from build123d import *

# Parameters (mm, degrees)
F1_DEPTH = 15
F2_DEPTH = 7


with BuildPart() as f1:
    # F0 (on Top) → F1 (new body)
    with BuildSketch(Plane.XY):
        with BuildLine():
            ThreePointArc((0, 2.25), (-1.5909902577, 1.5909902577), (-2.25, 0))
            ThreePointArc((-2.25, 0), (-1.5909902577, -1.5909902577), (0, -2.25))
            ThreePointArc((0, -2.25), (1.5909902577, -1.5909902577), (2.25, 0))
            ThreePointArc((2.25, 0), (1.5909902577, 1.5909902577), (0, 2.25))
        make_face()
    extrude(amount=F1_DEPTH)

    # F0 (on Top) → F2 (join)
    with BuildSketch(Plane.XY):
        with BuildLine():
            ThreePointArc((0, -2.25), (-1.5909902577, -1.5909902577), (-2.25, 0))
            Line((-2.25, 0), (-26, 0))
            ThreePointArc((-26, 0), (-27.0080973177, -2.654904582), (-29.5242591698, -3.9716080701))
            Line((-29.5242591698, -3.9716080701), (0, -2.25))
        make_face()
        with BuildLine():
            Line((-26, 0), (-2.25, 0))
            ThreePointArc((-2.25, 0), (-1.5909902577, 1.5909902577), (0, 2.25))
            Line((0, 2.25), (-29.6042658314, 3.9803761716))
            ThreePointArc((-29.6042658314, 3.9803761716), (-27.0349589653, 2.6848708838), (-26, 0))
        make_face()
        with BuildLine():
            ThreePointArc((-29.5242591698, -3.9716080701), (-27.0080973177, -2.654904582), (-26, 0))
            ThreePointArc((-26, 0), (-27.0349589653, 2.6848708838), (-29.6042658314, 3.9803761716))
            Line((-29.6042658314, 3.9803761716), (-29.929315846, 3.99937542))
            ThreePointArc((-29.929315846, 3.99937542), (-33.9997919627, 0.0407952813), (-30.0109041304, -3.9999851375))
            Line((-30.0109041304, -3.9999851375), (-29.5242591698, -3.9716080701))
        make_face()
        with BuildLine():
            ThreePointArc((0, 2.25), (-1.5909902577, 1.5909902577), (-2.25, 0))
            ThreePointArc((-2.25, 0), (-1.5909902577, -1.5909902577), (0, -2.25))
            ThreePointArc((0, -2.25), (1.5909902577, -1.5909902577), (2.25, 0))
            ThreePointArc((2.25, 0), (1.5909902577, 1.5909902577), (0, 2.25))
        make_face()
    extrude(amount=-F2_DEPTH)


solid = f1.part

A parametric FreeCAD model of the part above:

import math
import FreeCAD as App
import Part
import Sketcher
from FreeCAD import Vector
Q = App.Units.Quantity

doc = App.newDocument("Part")
body = doc.addObject("PartDesign::Body", "Body")

sketch1 = body.newObject("Sketcher::SketchObject", "Sketch")
sketch1.AttachmentSupport = (doc.getObject("XY_Plane"), [""])
sketch1.MapMode = "FlatFace"
sketch1.addGeometry([
    Part.ArcOfCircle(Part.Circle(Vector(0, 0, 0), Vector(0, 0, 1), 2.25), math.radians(90), math.radians(180)),
    Part.ArcOfCircle(Part.Circle(Vector(0, 0, 0), Vector(0, 0, 1), 2.25), math.radians(180), math.radians(270)),
    Part.ArcOfCircle(Part.Circle(Vector(0, 0, 0), Vector(0, 0, 1), 2.25), math.radians(-90), math.radians(0)),
    Part.ArcOfCircle(Part.Circle(Vector(0, 0, 0), Vector(0, 0, 1), 2.25), math.radians(0), math.radians(90)),
], False)
sketch1.addConstraint([
    Sketcher.Constraint("Tangent", 0, 2, 1, 1),
    Sketcher.Constraint("Tangent", 1, 2, 2, 1),
    Sketcher.Constraint("Tangent", 2, 2, 3, 1),
    Sketcher.Constraint("Tangent", 3, 2, 0, 1),
    Sketcher.Constraint("Coincident", 0, 3, -1, 1),
    Sketcher.Constraint("Equal", 0, 1),
    Sketcher.Constraint("PointOnObject", 0, 2, -1),
    Sketcher.Constraint("PointOnObject", 1, 2, -2),
    Sketcher.Constraint("PointOnObject", 2, 2, -1),
    Sketcher.Constraint("PointOnObject", 3, 2, -2),
    Sketcher.Constraint("Radius", 0, Q("2.25 mm")),
])
pad1 = body.newObject("PartDesign::Pad", "Pad")
pad1.Profile = sketch1
pad1.Length = 15

sketch2 = body.newObject("Sketcher::SketchObject", "Sketch001")
sketch2.AttachmentSupport = (doc.getObject("XY_Plane"), [""])
sketch2.MapMode = "FlatFace"
sketch2.addGeometry([
    Part.LineSegment(Vector(0, 2.25, 0), Vector(-29.604266, 3.980376, 0)),
    Part.LineSegment(Vector(-29.604266, 3.980376, 0), Vector(-29.929316, 3.999375, 0)),
    Part.ArcOfCircle(Part.Circle(Vector(-30, 0, 0), Vector(0, 0, 1), 4), math.radians(88.987471), math.radians(269.84381)),
    Part.LineSegment(Vector(-30.010904, -3.999985, 0), Vector(-29.524259, -3.971608, 0)),
    Part.LineSegment(Vector(-29.524259, -3.971608, 0), Vector(0, -2.25, 0)),
    Part.ArcOfCircle(Part.Circle(Vector(0, 0, 0), Vector(0, 0, 1), 2.25), math.radians(-90), math.radians(0)),
    Part.ArcOfCircle(Part.Circle(Vector(0, 0, 0), Vector(0, 0, 1), 2.25), math.radians(0), math.radians(90)),
], False)
sketch2.addConstraint([
    Sketcher.Constraint("Coincident", 0, 2, 1, 1),
    Sketcher.Constraint("Coincident", 1, 2, 2, 1),
    Sketcher.Constraint("Coincident", 2, 2, 3, 1),
    Sketcher.Constraint("Coincident", 3, 2, 4, 1),
    Sketcher.Constraint("Coincident", 4, 2, 5, 1),
    Sketcher.Constraint("Coincident", 5, 2, 6, 1),
    Sketcher.Constraint("Coincident", 6, 2, 0, 1),
    Sketcher.Constraint("Coincident", 5, 3, -1, 1),
    Sketcher.Constraint("Coincident", 6, 3, -1, 1),
    Sketcher.Constraint("PointOnObject", 2, 3, -1),
    Sketcher.Constraint("PointOnObject", 4, 2, -2),
    Sketcher.Constraint("PointOnObject", 5, 2, -1),
    Sketcher.Constraint("PointOnObject", 6, 2, -2),
    Sketcher.Constraint("Radius", 2, Q("4 mm")),
    Sketcher.Constraint("Radius", 5, Q("2.25 mm")),
    Sketcher.Constraint("DistanceX", 2, 3, -1, 1, Q("30 mm")),
    Sketcher.Constraint("DistanceY", 0, 2, 1, 2, Q("0.018999 mm")),
    Sketcher.Constraint("Distance", 3, Q("0.487472 mm")),
    Sketcher.Constraint("Distance", 4, Q("29.574411 mm")),
    Sketcher.Constraint("DistanceX", 3, 2, -1, 1, Q("29.524259 mm")),
    Sketcher.Constraint("DistanceX", 1, 2, 0, 2, Q("0.32505 mm")),
    Sketcher.Constraint("DistanceX", 2, 2, 0, 2, Q("0.406638 mm")),
])
pad2 = body.newObject("PartDesign::Pad", "Pad001")
pad2.Profile = sketch2
pad2.Length = 7
pad2.Reversed = True

doc.recompute()
